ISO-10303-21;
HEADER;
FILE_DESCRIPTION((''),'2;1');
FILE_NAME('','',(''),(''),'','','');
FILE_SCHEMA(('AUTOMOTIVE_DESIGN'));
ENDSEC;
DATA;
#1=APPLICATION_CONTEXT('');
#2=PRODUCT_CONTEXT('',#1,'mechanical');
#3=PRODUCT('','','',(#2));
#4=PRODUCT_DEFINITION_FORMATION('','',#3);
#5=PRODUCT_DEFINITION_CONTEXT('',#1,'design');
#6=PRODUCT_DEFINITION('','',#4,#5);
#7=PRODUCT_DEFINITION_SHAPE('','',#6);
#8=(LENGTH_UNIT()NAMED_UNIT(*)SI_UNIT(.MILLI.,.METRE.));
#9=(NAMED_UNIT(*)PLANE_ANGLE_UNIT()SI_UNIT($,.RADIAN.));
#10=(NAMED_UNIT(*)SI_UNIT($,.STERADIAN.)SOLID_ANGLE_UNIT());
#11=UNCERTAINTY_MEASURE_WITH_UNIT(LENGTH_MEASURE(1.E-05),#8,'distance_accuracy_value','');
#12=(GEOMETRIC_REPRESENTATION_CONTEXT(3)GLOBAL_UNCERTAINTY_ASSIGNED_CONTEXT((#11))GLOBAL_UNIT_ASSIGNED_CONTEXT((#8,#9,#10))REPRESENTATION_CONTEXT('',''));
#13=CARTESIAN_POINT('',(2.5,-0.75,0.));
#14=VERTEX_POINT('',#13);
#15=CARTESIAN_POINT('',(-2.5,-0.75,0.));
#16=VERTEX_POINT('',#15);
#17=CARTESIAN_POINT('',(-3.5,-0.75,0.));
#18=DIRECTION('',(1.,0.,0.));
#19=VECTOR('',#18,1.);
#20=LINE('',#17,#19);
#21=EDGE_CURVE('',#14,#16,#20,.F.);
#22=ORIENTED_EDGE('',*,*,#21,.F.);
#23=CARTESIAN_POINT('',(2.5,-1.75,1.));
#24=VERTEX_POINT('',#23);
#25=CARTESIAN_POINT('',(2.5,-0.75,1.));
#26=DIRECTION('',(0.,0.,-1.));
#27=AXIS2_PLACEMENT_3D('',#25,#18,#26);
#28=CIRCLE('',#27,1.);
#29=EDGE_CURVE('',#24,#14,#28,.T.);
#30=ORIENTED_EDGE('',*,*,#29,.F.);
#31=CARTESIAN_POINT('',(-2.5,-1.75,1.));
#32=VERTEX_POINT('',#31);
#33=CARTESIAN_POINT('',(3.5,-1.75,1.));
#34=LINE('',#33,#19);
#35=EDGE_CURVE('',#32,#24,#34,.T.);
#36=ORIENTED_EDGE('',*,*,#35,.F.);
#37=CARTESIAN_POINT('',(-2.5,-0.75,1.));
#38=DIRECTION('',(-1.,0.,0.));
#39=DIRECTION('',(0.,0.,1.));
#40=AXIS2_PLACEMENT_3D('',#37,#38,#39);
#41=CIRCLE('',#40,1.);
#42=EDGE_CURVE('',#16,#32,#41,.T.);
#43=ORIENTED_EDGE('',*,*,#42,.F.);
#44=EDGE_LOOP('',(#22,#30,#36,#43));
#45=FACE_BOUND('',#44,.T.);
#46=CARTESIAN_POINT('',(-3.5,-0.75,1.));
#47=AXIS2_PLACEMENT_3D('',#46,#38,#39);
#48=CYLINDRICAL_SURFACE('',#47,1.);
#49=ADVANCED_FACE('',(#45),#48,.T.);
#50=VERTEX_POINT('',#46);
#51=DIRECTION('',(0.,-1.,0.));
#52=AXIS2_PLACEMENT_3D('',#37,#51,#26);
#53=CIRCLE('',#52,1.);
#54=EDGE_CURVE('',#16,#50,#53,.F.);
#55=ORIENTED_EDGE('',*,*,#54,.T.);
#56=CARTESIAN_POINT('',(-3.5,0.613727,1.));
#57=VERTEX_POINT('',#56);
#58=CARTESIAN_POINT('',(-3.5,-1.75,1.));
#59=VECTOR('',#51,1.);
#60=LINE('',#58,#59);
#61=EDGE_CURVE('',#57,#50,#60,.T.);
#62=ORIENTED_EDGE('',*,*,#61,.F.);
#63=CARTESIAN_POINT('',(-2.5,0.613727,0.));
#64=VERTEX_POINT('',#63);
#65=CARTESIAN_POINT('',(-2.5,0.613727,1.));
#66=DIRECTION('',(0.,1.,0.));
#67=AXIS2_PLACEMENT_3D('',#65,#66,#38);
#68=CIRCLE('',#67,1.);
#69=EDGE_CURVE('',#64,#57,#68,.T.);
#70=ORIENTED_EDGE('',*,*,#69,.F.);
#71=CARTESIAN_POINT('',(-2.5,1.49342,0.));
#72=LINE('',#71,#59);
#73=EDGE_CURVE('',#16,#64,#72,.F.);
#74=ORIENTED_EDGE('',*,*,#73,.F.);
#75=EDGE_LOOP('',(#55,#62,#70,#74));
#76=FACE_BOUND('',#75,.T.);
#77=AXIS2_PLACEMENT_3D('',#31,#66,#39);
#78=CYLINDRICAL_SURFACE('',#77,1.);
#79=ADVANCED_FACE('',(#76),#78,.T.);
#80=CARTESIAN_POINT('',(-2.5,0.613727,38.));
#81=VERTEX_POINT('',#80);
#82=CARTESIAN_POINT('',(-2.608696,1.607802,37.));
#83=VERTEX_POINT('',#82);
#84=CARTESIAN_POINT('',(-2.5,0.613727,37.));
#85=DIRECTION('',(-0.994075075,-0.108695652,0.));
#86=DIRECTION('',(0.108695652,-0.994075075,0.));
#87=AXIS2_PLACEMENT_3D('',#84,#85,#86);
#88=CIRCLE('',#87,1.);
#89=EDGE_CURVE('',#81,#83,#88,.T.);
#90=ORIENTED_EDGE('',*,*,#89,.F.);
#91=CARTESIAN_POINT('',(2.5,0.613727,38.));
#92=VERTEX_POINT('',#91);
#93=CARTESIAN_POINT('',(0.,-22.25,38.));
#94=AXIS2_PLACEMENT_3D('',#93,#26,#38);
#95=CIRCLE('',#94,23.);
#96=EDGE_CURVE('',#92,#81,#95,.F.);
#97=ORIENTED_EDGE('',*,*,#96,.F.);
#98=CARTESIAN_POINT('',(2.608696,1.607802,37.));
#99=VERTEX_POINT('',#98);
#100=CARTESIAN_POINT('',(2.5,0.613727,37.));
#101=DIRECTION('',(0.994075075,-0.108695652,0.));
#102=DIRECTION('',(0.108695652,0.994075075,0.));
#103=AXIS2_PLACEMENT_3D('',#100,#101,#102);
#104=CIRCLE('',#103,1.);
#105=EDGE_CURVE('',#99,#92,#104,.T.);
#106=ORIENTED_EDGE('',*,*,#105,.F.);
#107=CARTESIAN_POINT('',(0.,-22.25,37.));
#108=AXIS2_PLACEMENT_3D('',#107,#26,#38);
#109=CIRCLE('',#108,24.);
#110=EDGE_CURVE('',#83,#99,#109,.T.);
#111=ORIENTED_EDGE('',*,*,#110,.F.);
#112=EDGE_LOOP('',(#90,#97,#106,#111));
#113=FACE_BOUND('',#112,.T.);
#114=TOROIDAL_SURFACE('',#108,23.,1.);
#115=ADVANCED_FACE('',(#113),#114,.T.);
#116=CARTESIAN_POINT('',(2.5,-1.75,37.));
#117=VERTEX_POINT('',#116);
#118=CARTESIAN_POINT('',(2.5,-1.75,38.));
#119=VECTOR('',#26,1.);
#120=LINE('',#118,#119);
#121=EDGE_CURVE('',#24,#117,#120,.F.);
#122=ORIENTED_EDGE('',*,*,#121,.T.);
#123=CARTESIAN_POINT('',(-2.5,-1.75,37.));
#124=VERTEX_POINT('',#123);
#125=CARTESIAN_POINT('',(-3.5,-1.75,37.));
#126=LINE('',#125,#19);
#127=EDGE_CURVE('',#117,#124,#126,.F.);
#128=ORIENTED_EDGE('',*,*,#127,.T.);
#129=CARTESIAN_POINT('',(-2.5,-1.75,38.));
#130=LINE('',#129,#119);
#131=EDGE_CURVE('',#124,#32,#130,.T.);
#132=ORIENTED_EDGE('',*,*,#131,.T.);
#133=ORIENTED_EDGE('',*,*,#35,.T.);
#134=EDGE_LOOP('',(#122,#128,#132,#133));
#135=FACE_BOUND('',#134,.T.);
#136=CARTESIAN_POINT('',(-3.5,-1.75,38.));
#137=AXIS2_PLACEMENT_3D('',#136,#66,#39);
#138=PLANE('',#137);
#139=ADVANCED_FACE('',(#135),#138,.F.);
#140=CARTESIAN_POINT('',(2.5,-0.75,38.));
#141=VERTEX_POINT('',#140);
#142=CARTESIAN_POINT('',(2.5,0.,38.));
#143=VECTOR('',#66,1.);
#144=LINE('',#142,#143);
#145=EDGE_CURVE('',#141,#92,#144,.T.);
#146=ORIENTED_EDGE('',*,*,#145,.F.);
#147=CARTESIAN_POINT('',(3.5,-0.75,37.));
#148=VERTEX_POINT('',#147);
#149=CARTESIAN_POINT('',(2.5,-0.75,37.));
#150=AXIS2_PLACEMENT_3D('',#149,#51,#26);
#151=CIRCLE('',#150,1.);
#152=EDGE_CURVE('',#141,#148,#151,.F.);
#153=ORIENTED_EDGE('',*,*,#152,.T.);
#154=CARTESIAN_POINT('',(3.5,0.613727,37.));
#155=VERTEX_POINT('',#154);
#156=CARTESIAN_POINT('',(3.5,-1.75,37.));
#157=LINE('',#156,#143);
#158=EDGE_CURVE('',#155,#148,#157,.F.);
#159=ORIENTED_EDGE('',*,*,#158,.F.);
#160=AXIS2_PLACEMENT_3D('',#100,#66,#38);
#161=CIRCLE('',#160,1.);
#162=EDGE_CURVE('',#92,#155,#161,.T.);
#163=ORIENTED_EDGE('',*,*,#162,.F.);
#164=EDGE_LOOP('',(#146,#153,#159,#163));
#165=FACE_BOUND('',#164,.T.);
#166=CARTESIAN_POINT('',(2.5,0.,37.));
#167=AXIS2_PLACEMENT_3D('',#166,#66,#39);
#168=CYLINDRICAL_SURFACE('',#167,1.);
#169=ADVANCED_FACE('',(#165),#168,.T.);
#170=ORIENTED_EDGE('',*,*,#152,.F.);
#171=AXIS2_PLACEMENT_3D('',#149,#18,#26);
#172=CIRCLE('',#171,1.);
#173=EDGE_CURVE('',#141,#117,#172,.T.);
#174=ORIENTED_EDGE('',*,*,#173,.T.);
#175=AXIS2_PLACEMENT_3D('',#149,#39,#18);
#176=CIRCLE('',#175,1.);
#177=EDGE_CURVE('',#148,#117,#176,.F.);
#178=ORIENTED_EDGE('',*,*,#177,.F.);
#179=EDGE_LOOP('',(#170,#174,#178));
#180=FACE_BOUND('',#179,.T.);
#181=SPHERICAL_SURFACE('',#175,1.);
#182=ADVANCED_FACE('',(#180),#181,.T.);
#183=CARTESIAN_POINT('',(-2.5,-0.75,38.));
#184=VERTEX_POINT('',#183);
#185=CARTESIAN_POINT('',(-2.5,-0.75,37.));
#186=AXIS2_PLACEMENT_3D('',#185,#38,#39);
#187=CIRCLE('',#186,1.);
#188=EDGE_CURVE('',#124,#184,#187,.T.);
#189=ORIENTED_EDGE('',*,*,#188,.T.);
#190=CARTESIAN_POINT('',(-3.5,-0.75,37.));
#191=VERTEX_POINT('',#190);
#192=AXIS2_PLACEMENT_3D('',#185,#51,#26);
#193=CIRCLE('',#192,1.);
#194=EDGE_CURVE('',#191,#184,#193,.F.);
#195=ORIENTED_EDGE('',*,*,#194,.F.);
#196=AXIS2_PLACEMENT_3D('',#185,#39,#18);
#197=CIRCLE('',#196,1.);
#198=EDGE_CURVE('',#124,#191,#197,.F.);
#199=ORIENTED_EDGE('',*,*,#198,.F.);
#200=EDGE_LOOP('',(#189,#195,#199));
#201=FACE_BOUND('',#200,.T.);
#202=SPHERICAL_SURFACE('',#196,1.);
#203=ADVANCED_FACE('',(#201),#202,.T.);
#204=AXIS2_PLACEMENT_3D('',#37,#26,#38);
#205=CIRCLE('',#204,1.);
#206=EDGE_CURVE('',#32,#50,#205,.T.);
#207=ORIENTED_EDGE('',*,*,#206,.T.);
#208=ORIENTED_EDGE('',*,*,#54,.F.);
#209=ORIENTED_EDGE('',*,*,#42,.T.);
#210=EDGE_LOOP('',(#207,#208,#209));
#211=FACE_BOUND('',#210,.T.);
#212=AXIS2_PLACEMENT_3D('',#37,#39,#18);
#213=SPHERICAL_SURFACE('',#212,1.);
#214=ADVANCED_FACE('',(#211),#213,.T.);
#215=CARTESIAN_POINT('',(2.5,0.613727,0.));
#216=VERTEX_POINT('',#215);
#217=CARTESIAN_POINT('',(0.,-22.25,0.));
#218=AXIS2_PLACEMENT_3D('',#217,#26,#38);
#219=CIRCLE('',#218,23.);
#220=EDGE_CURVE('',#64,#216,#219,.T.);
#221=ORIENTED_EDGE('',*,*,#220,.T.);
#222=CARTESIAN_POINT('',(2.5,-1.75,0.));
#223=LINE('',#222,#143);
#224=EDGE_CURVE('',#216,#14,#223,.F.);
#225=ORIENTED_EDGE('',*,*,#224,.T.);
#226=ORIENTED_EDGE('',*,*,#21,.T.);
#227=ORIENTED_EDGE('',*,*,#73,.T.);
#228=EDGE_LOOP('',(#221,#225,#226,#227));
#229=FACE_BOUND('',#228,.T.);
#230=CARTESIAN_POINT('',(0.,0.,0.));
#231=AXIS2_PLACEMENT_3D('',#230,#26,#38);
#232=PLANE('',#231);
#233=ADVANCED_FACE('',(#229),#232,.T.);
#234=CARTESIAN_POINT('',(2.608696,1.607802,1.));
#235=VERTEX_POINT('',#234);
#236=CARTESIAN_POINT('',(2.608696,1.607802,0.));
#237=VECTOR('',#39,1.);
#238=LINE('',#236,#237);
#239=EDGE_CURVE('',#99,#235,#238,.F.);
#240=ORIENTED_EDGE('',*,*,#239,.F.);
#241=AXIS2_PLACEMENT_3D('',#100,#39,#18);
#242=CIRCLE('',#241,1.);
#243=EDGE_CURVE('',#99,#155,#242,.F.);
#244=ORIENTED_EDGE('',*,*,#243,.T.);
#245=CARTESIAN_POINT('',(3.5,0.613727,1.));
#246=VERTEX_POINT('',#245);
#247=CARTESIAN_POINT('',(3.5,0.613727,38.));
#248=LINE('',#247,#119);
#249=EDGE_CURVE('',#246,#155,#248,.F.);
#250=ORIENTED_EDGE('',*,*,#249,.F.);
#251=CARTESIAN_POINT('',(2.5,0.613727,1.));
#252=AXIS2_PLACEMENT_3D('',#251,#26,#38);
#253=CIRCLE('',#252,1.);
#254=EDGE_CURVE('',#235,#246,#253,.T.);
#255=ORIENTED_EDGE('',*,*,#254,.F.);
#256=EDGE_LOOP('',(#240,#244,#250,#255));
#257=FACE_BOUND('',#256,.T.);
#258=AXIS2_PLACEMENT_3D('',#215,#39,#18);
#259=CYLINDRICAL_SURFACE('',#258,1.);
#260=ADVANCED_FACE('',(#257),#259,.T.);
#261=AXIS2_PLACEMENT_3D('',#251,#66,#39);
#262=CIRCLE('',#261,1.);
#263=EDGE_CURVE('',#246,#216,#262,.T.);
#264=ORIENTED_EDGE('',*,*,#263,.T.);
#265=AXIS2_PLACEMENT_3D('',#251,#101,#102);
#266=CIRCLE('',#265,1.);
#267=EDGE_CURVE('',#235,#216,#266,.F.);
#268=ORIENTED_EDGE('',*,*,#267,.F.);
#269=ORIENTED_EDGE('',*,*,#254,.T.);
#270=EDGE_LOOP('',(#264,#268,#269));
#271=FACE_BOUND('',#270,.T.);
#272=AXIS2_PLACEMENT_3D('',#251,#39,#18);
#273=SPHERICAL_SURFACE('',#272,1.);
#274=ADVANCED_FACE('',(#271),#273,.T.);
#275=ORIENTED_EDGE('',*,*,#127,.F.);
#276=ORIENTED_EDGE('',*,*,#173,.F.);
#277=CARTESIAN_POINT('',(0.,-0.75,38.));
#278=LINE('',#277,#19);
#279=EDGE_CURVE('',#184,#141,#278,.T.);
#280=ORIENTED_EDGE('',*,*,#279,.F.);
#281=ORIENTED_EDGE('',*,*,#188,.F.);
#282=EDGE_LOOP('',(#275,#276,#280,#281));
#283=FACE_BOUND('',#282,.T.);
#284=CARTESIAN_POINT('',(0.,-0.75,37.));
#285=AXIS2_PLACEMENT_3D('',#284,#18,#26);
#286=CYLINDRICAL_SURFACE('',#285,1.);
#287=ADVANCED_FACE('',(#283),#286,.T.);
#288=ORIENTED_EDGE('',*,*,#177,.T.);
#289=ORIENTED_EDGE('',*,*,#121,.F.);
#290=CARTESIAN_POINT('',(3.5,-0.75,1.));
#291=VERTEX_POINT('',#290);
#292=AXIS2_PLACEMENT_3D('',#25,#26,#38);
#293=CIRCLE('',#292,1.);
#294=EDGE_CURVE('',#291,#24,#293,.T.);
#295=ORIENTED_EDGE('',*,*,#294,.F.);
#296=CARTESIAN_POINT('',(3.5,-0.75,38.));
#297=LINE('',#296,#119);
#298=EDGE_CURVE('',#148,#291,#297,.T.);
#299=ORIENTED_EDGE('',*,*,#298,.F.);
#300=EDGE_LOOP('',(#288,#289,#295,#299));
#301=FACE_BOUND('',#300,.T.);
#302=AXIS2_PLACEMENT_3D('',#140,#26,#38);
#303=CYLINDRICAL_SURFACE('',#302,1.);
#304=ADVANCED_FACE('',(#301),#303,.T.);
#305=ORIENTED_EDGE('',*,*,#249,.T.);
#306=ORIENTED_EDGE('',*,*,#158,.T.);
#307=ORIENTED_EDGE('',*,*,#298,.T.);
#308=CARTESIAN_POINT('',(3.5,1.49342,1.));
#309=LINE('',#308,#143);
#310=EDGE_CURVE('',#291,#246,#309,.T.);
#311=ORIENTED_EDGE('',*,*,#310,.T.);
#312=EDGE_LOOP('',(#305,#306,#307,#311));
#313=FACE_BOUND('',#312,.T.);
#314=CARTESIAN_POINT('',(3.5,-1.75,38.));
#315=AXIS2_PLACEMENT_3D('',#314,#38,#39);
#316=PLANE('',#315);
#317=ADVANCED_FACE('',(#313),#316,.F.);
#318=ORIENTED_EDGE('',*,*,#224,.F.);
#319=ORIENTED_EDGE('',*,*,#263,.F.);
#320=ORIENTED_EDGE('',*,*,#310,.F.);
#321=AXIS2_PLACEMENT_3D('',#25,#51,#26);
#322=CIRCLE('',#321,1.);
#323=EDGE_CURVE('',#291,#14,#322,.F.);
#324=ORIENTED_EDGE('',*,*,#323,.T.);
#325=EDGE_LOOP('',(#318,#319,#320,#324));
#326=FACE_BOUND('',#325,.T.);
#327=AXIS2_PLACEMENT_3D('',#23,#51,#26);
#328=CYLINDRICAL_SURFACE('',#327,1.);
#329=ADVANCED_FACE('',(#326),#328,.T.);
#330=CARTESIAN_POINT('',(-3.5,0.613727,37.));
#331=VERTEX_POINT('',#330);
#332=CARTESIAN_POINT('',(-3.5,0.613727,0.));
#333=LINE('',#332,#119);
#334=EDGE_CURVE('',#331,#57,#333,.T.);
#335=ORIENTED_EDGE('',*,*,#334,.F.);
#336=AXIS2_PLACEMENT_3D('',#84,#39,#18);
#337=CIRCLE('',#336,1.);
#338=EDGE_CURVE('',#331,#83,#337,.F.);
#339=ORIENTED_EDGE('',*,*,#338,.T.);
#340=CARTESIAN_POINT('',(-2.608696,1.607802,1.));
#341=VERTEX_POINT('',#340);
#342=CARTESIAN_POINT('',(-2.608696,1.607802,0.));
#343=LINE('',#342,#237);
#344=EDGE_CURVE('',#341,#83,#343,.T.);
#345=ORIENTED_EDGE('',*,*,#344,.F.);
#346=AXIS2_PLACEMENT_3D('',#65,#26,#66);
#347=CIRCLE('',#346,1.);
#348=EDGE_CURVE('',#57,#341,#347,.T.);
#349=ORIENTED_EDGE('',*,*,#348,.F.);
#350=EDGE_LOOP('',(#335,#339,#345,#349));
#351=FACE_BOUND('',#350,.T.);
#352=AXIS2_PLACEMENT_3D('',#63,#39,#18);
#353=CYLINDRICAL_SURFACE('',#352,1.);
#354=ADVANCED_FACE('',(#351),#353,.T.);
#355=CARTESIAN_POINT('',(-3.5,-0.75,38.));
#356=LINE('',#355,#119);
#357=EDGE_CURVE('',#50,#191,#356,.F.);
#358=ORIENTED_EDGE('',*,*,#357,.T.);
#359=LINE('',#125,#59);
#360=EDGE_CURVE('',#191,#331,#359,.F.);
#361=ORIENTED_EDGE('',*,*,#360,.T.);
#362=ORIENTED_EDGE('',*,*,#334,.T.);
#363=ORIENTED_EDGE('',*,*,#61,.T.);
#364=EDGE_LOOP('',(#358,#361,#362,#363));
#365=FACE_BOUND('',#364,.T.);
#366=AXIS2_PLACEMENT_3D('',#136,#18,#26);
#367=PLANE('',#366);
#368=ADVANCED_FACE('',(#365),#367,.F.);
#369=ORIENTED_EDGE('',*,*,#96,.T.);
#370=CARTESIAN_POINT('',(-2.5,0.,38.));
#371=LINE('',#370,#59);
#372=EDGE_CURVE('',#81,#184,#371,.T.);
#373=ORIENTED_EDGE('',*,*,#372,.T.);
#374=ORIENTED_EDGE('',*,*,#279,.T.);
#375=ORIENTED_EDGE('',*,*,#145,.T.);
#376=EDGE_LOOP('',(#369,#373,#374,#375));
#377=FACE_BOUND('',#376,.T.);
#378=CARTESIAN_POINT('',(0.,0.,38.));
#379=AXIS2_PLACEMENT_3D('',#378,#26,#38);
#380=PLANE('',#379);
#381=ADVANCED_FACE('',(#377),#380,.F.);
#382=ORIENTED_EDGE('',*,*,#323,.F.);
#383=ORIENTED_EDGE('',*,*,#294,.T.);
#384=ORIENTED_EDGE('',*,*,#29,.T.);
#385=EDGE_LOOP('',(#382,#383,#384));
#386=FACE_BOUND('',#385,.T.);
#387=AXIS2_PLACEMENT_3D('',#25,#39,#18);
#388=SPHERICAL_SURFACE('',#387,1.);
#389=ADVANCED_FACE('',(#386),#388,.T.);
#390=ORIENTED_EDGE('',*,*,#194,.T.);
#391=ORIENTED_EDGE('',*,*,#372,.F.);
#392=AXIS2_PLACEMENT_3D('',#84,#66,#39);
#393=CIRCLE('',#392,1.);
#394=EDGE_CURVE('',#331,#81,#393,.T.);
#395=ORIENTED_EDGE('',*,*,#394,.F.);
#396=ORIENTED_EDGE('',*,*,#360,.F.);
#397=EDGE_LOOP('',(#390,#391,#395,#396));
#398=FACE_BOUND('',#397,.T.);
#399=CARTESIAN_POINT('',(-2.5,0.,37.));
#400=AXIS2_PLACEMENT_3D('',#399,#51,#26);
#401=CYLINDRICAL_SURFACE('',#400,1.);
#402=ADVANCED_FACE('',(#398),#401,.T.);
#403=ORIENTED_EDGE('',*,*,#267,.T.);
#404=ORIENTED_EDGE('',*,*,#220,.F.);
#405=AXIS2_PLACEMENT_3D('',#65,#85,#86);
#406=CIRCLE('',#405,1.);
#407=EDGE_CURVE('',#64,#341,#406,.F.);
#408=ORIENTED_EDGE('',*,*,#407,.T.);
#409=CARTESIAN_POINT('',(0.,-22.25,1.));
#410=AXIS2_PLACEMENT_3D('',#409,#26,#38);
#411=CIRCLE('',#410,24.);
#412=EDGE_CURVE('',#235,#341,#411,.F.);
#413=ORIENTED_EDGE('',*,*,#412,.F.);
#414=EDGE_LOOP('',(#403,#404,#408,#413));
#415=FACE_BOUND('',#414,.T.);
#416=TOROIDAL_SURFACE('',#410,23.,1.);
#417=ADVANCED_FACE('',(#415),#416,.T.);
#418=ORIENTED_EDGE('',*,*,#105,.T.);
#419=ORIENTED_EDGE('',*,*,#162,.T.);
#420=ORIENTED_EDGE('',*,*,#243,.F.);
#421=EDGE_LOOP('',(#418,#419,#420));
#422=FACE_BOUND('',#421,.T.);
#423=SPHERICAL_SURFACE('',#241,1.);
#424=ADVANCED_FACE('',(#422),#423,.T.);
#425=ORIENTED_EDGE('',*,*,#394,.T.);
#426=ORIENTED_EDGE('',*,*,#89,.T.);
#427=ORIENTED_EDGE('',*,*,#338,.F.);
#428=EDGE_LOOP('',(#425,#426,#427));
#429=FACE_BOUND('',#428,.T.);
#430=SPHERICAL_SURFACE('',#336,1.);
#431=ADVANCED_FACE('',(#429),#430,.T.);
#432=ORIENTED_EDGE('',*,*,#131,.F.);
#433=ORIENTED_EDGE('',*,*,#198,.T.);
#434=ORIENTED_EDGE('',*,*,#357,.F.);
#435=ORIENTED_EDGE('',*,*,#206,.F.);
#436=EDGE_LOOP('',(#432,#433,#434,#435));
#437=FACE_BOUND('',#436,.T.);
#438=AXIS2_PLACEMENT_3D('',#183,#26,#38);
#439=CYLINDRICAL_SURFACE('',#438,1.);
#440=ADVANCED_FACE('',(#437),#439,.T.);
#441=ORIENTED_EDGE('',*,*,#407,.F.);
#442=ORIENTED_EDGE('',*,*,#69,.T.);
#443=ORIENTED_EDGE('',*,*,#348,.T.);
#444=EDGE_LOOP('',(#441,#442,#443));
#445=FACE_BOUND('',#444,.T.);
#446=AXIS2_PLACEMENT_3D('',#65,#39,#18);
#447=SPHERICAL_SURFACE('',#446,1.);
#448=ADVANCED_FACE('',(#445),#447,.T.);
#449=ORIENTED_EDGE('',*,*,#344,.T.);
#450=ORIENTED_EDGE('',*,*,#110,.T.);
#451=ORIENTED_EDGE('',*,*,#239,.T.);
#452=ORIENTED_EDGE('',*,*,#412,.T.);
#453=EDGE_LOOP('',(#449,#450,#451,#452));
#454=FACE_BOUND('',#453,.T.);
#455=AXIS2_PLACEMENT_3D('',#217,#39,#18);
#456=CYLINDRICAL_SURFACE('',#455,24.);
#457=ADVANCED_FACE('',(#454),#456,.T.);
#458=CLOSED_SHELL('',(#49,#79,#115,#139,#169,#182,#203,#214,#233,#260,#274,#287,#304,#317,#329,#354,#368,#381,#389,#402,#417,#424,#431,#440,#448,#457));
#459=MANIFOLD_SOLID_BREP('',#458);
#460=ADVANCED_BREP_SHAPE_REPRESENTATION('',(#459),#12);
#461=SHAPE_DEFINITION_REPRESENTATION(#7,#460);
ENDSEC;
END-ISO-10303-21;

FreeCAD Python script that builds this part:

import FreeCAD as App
import Part
import Sketcher

doc = App.newDocument("Part")
body = doc.addObject("PartDesign::Body", "Body")

# Sketch on XY plane
sketch1 = doc.addObject("Sketcher::SketchObject", "Sketch")
body.addObject(sketch1)
sketch1.AttachmentSupport = (doc.XY_Plane, [""])
sketch1.MapMode = "FlatFace"
sketch1.addGeometry(Part.LineSegment(App.Vector(-3.5, 1.75, 0), App.Vector(-3.5, -1.75, 0)), False)
sketch1.addGeometry(Part.LineSegment(App.Vector(-3.5, -1.75, 0), App.Vector(3.5, -1.75, 0)), False)
sketch1.addGeometry(Part.LineSegment(App.Vector(3.5, -1.75, 0), App.Vector(3.5, 1.75, 0)), False)
sketch1.addGeometry(Part.LineSegment(App.Vector(3.5, 1.75, 0), App.Vector(-3.5, 1.75, 0)), False)
sketch1.addConstraint(Sketcher.Constraint("Coincident", 0, 2, 1, 1))
sketch1.addConstraint(Sketcher.Constraint("Coincident", 1, 2, 2, 1))
sketch1.addConstraint(Sketcher.Constraint("Coincident", 2, 2, 3, 1))
sketch1.addConstraint(Sketcher.Constraint("Coincident", 3, 2, 0, 1))
sketch1.addConstraint(Sketcher.Constraint("Vertical", 0))
sketch1.addConstraint(Sketcher.Constraint("Horizontal", 1))
sketch1.addConstraint(Sketcher.Constraint("Vertical", 2))
sketch1.addConstraint(Sketcher.Constraint("Horizontal", 3))
sketch1.addConstraint(Sketcher.Constraint("Symmetric", 0, 2, 2, 2, -1, 1))
sketch1.addConstraint(Sketcher.Constraint("DistanceX", 1, 1, 1, 2, 7.0))
sketch1.addConstraint(Sketcher.Constraint("DistanceY", 0, 2, 0, 1, 3.5))
pad1 = doc.addObject("PartDesign::Pad", "Pad")
body.addObject(pad1)
pad1.Profile = sketch1
pad1.Length = 38

# Sketch on XY plane
sketch2 = doc.addObject("Sketcher::SketchObject", "Sketch001")
body.addObject(sketch2)
sketch2.AttachmentSupport = (doc.XY_Plane, [""])
sketch2.MapMode = "FlatFace"
sketch2.AttachmentOffset = App.Placement(App.Vector(0, 0, 38), App.Rotation())
sketch2.addGeometry(Part.Circle(App.Vector(0, -22.25, 0), App.Vector(0, 0, 1), 29), False)
sketch2.addGeometry(Part.Circle(App.Vector(0, -22.25, 0), App.Vector(0, 0, 1), 24), False)
sketch2.addConstraint(Sketcher.Constraint("Coincident", 1, 3, 0, 3))
sketch2.addConstraint(Sketcher.Constraint("PointOnObject", 0, 3, -2))
sketch2.addConstraint(Sketcher.Constraint("Diameter", 0, 58.0))
sketch2.addConstraint(Sketcher.Constraint("Diameter", 1, 48.0))
sketch2.addConstraint(Sketcher.Constraint("DistanceY", 0, 3, -1, 1, 22.25))
pocket1 = doc.addObject("PartDesign::Pocket", "Pocket")
body.addObject(pocket1)
pocket1.Profile = sketch2
pocket1.Type = "ThroughAll"
doc.recompute()

fillet = doc.addObject("PartDesign::Fillet", "Fillet")
body.addObject(fillet)
fillet.Base = (pocket1, ["Edge1"])
fillet.UseAllEdges = True
fillet.Radius = 1

doc.recompute()
